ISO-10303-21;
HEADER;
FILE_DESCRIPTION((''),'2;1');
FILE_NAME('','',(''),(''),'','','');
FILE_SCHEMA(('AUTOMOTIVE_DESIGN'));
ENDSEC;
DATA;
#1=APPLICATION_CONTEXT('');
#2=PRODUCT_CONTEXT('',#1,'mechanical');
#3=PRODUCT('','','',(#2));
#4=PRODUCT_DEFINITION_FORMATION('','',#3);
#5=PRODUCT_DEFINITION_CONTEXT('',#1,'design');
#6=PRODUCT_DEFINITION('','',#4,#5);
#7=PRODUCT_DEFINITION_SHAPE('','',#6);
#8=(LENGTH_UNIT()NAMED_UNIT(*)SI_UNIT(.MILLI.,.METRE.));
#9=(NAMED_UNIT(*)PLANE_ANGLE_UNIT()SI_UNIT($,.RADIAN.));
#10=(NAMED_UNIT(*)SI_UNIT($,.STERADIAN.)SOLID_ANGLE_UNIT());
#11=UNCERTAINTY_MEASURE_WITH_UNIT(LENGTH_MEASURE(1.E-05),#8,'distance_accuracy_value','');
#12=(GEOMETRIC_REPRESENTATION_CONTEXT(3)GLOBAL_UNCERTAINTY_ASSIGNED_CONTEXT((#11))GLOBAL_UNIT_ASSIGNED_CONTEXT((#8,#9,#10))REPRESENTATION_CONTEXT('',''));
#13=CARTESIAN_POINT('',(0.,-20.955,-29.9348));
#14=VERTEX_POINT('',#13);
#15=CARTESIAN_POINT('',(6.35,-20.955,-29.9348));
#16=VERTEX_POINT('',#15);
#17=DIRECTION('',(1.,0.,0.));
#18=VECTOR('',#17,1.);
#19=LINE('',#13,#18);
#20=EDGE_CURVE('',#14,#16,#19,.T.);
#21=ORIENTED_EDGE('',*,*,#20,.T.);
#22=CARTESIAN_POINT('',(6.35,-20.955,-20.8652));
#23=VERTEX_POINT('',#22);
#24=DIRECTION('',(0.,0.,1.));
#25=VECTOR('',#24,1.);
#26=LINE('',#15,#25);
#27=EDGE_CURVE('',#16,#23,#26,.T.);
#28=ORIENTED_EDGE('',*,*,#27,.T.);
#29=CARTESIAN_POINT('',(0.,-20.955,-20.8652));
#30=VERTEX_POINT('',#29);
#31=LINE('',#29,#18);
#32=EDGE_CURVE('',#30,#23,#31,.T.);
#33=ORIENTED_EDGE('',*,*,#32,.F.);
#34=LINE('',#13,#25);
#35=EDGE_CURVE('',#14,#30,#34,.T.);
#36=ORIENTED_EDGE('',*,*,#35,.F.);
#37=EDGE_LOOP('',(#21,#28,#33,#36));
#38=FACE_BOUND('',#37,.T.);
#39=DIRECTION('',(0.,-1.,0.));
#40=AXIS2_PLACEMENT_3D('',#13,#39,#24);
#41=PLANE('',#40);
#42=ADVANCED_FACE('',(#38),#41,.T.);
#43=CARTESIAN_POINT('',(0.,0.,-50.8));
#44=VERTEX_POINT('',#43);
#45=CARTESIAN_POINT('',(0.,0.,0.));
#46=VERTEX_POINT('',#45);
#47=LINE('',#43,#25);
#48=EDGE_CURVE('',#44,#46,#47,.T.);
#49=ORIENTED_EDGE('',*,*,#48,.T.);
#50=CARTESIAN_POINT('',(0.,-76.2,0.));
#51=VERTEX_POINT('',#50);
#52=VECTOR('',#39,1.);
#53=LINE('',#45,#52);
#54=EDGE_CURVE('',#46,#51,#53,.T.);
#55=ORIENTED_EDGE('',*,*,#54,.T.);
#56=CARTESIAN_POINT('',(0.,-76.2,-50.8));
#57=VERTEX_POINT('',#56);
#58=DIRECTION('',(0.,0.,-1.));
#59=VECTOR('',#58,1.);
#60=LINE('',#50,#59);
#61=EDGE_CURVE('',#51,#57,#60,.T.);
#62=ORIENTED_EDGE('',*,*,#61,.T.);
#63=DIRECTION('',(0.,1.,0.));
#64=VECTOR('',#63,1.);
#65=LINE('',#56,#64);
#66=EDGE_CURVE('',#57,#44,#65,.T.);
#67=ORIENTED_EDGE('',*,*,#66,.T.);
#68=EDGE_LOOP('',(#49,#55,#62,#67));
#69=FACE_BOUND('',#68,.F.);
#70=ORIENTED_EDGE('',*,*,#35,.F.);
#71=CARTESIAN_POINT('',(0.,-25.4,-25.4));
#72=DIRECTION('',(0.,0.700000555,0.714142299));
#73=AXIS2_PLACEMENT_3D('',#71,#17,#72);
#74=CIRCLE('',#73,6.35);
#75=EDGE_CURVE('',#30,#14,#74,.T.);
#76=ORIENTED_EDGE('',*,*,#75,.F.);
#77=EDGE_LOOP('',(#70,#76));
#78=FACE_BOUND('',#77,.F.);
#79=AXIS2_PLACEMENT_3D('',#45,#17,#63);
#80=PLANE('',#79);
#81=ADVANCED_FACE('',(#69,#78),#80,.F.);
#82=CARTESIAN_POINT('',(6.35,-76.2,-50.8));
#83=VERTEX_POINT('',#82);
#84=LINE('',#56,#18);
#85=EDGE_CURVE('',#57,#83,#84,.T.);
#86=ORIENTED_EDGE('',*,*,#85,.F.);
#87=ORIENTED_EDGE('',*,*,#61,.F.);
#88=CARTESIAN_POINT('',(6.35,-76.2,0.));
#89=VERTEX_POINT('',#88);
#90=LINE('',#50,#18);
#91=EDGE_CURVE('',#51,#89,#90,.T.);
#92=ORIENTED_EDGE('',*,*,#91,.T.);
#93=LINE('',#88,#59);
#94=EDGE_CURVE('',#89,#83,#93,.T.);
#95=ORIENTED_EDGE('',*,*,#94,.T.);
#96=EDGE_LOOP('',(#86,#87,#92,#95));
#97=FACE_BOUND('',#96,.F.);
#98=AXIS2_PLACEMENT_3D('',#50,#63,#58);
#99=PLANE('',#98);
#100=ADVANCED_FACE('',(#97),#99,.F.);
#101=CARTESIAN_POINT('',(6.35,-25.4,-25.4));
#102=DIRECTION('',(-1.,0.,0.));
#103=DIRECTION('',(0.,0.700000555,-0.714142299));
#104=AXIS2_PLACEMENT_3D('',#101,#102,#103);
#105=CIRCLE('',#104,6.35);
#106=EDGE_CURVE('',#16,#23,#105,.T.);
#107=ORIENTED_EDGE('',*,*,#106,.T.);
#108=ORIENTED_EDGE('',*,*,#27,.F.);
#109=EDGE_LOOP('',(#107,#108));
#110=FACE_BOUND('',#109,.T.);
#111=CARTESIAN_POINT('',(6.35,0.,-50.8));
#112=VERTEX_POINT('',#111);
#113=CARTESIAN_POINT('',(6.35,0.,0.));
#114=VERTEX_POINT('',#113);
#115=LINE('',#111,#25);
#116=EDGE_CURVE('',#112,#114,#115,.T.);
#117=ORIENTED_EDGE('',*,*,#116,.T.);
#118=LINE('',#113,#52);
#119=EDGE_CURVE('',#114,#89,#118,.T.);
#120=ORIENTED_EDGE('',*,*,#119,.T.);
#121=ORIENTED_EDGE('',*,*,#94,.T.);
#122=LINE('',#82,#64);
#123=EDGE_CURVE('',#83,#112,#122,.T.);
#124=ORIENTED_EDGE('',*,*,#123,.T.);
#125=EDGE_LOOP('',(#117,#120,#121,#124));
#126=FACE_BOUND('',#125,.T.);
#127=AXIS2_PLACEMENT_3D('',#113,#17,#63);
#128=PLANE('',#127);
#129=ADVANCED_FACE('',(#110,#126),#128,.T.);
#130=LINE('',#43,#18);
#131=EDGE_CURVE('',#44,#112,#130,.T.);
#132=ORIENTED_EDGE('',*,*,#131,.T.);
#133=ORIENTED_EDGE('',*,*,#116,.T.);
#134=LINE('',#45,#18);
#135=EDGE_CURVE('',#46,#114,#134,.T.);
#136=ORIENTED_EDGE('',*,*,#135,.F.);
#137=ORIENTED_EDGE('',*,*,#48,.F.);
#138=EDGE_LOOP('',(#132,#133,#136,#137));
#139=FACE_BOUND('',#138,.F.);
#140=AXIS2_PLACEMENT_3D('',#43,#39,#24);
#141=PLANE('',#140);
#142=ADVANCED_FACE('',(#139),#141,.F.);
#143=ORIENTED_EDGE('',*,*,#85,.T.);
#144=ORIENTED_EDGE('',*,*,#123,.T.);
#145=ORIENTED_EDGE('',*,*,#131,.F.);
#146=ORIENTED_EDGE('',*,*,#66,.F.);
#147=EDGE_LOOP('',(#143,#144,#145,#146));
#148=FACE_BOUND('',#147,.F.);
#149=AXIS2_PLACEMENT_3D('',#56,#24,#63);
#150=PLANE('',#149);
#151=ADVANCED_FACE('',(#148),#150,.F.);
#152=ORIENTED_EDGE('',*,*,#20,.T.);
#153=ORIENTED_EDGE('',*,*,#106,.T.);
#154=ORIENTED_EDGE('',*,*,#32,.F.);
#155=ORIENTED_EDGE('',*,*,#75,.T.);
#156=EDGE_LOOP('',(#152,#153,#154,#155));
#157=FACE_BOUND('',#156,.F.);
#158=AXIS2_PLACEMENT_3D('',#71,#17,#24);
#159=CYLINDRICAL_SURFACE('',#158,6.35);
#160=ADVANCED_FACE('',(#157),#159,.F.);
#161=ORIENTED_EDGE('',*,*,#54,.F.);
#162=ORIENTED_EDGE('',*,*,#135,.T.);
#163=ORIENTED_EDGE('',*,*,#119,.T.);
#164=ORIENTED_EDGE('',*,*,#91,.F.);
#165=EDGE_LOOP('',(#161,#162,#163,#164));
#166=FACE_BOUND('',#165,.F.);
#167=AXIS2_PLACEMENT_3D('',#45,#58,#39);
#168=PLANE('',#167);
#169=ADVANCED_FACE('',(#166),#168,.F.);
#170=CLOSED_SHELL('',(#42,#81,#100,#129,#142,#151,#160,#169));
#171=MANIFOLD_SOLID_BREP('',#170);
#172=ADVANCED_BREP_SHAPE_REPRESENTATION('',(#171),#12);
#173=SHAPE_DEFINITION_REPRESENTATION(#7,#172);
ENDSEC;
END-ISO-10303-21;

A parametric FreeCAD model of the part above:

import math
import FreeCAD as App
import Part
import Sketcher

V = App.Vector
Q = App.Units.Quantity

doc = App.newDocument("Part")
params = doc.addObject("Spreadsheet::Sheet", "Params")
for row, (alias, value) in enumerate([
    ("sketch1_width", "3 in"),
    ("sketch1_height", "2 in"),
    ("pad1_length", "0.25 in"),
    ("sketch2_diameter", "0.5 in"),
    ("hole_diameter", "0.5 in"),
    ("hole_depth", "1 in"),
    ("sketch3_radius", "0.25 in"),
    ("pad2_length", "0.25 in"),
], start=1):
    params.set(f"A{row}", alias)
    params.set(f"B{row}", "=" + value)
    params.setAlias(f"B{row}", alias)

body = doc.addObject("PartDesign::Body", "Body")

sketch1 = body.newObject("Sketcher::SketchObject", "Sketch")
sketch1.AttachmentSupport = (doc.getObject("YZ_Plane"), [""])
sketch1.MapMode = "FlatFace"
sketch1.addGeometry([
    Part.LineSegment(V(0, -50.8, 0), V(0, 0, 0)),
    Part.LineSegment(V(0, 0, 0), V(-76.2, 0, 0)),
    Part.LineSegment(V(-76.2, 0, 0), V(-76.2, -50.8, 0)),
    Part.LineSegment(V(-76.2, -50.8, 0), V(0, -50.8, 0)),
], False)
sketch1.addConstraint([
    Sketcher.Constraint("Coincident", 0, 2, 1, 1),
    Sketcher.Constraint("Coincident", 1, 2, 2, 1),
    Sketcher.Constraint("Coincident", 2, 2, 3, 1),
    Sketcher.Constraint("Coincident", 3, 2, 0, 1),
    Sketcher.Constraint("Vertical", 0),
    Sketcher.Constraint("Horizontal", 1),
    Sketcher.Constraint("Vertical", 2),
    Sketcher.Constraint("Horizontal", 3),
    Sketcher.Constraint("Coincident", 0, 2, -1, 1),
    Sketcher.Constraint("DistanceX", 1, 2, 1, 1, Q("3 in")),
    Sketcher.Constraint("DistanceY", 0, 1, 0, 2, Q("2 in")),
])
sketch1.setExpression("Constraints[9]", "Params.sketch1_width")
sketch1.setExpression("Constraints[10]", "Params.sketch1_height")
pad1 = body.newObject("PartDesign::Pad", "Pad")
pad1.Profile = sketch1
pad1.setExpression("Length", "Params.pad1_length")

sketch2 = body.newObject("Sketcher::SketchObject", "Sketch001")
sketch2.AttachmentSupport = (doc.getObject("YZ_Plane"), [""])
sketch2.MapMode = "FlatFace"
sketch2.addGeometry(Part.Circle(V(-25.4, -25.4, 0), V(0, 0, 1), 6.35), False)
sketch2.addConstraint([
    Sketcher.Constraint("Diameter", 0, Q("0.5 in")),
    Sketcher.Constraint("DistanceX", 0, 3, -1, 1, Q("1 in")),
    Sketcher.Constraint("DistanceY", 0, 3, -1, 1, Q("1 in")),
])
sketch2.setExpression("Constraints[0]", "Params.sketch2_diameter")
doc.recompute()
hole = body.newObject("PartDesign::Hole", "Hole")
hole.Profile = sketch2
hole.ThreadType = "None"
hole.setExpression("Diameter", "Params.hole_diameter")
hole.DepthType = "Dimension"
hole.setExpression("Depth", "Params.hole_depth")
hole.DrillPoint = "Angled"
hole.DrillPointAngle = 118
hole.Reversed = True

sketch3 = body.newObject("Sketcher::SketchObject", "Sketch002")
sketch3.AttachmentSupport = (doc.getObject("YZ_Plane"), [""])
sketch3.MapMode = "FlatFace"
sketch3.addGeometry([
    Part.LineSegment(V(-20.955, -29.9348, 0), V(-20.955, -20.8652, 0)),
    Part.ArcOfCircle(Part.Circle(V(-25.4, -25.4, 0), V(0, 0, 1), 6.35), math.radians(-45.572951), math.radians(45.572951)),
], False)
sketch3.addConstraint([
    Sketcher.Constraint("Coincident", 0, 1, 1, 1),
    Sketcher.Constraint("Coincident", 1, 2, 0, 2),
    Sketcher.Constraint("Vertical", 0),
    Sketcher.Constraint("Radius", 1, Q("0.25 in")),
    Sketcher.Constraint("DistanceX", 1, 3, -1, 1, Q("1 in")),
    Sketcher.Constraint("DistanceY", 1, 3, -1, 1, Q("1 in")),
    Sketcher.Constraint("DistanceX", 1, 3, 0, 1, Q("0.175 in")),
])
sketch3.setExpression("Constraints[3]", "Params.sketch3_radius")
pad2 = body.newObject("PartDesign::Pad", "Pad001")
pad2.Profile = sketch3
pad2.setExpression("Length", "Params.pad2_length")

doc.recompute()
